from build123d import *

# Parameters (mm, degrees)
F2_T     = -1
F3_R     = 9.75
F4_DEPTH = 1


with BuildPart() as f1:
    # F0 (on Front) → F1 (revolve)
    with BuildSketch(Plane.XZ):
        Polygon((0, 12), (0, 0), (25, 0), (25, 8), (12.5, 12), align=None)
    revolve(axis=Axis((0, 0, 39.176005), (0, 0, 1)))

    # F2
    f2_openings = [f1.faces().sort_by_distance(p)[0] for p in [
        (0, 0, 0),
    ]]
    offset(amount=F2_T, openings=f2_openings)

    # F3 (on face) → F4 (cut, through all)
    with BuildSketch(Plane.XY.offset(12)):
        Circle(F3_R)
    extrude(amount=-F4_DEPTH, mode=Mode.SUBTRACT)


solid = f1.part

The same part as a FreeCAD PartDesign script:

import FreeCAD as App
import Part
import Sketcher
Q = App.Units.Quantity


def faces_at(feature, points):
    """Names of the faces that lie closest to the given points."""
    faces = feature.Shape.Faces
    near = lambda p: min(range(len(faces)), key=lambda i: faces[i].distToShape(Part.Vertex(*p))[0])
    return sorted({f"Face{near(p) + 1}" for p in points})

doc = App.newDocument("Part")
body = doc.addObject("PartDesign::Body", "Body")

# Sketch on XZ plane
sketch1 = doc.addObject("Sketcher::SketchObject", "Sketch")
body.addObject(sketch1)
sketch1.AttachmentSupport = (doc.XZ_Plane, [""])
sketch1.MapMode = "FlatFace"
sketch1.addGeometry([
    Part.LineSegment(App.Vector(0, 12, 0), App.Vector(0, 0, 0)),  # 0
    Part.LineSegment(App.Vector(0, 0, 0), App.Vector(25, 0, 0)),  # 1
    Part.LineSegment(App.Vector(25, 0, 0), App.Vector(25, 8, 0)),  # 2
    Part.LineSegment(App.Vector(25, 8, 0), App.Vector(12, 12, 0)),  # 3
    Part.LineSegment(App.Vector(12, 12, 0), App.Vector(0, 12, 0)),  # 4
], False)
sketch1.addConstraint([
    Sketcher.Constraint("Coincident", 0, 2, 1, 1),
    Sketcher.Constraint("Coincident", 1, 2, 2, 1),
    Sketcher.Constraint("Coincident", 2, 2, 3, 1),
    Sketcher.Constraint("Coincident", 3, 2, 4, 1),
    Sketcher.Constraint("Coincident", 4, 2, 0, 1),
    Sketcher.Constraint("Vertical", 0),
    Sketcher.Constraint("Horizontal", 1),
    Sketcher.Constraint("Vertical", 2),
    Sketcher.Constraint("Horizontal", 4),
    Sketcher.Constraint("Coincident", 0, 2, -1, 1),
    Sketcher.Constraint("DistanceX", 1, 1, 1, 2, Q("25 mm")),
    Sketcher.Constraint("DistanceY", 0, 2, 0, 1, Q("12 mm")),
    Sketcher.Constraint("DistanceY", 2, 1, 2, 2, Q("8 mm")),
    Sketcher.Constraint("DistanceX", 4, 2, 4, 1, Q("12.5 mm")),
])
revolution = doc.addObject("PartDesign::Revolution", "Revolution")
body.addObject(revolution)
revolution.Profile = sketch1
revolution.ReferenceAxis = (sketch1, ["V_Axis"])
revolution.Angle = 360
doc.recompute()

thickness = doc.addObject("PartDesign::Thickness", "Thickness")
body.addObject(thickness)
thickness.Base = (revolution, faces_at(revolution, [(0, 0, 0)]))
thickness.Value = 1
thickness.Reversed = True
thickness.Join = "Arc"

# Sketch on XY plane
sketch2 = doc.addObject("Sketcher::SketchObject", "Sketch001")
body.addObject(sketch2)
sketch2.AttachmentSupport = (doc.XY_Plane, [""])
sketch2.MapMode = "FlatFace"
sketch2.AttachmentOffset = App.Placement(App.Vector(0, 0, 12), App.Rotation())
sketch2.addGeometry(Part.Circle(App.Vector(0, 0, 0), App.Vector(0, 0, 1), 10), False)
sketch2.addConstraint([
    Sketcher.Constraint("Coincident", 0, 3, -1, 1),
    Sketcher.Constraint("Diameter", 0, Q("19.5 mm")),
])
pocket1 = doc.addObject("PartDesign::Pocket", "Pocket")
body.addObject(pocket1)
pocket1.Profile = sketch2
pocket1.Type = "ThroughAll"

doc.recompute()
